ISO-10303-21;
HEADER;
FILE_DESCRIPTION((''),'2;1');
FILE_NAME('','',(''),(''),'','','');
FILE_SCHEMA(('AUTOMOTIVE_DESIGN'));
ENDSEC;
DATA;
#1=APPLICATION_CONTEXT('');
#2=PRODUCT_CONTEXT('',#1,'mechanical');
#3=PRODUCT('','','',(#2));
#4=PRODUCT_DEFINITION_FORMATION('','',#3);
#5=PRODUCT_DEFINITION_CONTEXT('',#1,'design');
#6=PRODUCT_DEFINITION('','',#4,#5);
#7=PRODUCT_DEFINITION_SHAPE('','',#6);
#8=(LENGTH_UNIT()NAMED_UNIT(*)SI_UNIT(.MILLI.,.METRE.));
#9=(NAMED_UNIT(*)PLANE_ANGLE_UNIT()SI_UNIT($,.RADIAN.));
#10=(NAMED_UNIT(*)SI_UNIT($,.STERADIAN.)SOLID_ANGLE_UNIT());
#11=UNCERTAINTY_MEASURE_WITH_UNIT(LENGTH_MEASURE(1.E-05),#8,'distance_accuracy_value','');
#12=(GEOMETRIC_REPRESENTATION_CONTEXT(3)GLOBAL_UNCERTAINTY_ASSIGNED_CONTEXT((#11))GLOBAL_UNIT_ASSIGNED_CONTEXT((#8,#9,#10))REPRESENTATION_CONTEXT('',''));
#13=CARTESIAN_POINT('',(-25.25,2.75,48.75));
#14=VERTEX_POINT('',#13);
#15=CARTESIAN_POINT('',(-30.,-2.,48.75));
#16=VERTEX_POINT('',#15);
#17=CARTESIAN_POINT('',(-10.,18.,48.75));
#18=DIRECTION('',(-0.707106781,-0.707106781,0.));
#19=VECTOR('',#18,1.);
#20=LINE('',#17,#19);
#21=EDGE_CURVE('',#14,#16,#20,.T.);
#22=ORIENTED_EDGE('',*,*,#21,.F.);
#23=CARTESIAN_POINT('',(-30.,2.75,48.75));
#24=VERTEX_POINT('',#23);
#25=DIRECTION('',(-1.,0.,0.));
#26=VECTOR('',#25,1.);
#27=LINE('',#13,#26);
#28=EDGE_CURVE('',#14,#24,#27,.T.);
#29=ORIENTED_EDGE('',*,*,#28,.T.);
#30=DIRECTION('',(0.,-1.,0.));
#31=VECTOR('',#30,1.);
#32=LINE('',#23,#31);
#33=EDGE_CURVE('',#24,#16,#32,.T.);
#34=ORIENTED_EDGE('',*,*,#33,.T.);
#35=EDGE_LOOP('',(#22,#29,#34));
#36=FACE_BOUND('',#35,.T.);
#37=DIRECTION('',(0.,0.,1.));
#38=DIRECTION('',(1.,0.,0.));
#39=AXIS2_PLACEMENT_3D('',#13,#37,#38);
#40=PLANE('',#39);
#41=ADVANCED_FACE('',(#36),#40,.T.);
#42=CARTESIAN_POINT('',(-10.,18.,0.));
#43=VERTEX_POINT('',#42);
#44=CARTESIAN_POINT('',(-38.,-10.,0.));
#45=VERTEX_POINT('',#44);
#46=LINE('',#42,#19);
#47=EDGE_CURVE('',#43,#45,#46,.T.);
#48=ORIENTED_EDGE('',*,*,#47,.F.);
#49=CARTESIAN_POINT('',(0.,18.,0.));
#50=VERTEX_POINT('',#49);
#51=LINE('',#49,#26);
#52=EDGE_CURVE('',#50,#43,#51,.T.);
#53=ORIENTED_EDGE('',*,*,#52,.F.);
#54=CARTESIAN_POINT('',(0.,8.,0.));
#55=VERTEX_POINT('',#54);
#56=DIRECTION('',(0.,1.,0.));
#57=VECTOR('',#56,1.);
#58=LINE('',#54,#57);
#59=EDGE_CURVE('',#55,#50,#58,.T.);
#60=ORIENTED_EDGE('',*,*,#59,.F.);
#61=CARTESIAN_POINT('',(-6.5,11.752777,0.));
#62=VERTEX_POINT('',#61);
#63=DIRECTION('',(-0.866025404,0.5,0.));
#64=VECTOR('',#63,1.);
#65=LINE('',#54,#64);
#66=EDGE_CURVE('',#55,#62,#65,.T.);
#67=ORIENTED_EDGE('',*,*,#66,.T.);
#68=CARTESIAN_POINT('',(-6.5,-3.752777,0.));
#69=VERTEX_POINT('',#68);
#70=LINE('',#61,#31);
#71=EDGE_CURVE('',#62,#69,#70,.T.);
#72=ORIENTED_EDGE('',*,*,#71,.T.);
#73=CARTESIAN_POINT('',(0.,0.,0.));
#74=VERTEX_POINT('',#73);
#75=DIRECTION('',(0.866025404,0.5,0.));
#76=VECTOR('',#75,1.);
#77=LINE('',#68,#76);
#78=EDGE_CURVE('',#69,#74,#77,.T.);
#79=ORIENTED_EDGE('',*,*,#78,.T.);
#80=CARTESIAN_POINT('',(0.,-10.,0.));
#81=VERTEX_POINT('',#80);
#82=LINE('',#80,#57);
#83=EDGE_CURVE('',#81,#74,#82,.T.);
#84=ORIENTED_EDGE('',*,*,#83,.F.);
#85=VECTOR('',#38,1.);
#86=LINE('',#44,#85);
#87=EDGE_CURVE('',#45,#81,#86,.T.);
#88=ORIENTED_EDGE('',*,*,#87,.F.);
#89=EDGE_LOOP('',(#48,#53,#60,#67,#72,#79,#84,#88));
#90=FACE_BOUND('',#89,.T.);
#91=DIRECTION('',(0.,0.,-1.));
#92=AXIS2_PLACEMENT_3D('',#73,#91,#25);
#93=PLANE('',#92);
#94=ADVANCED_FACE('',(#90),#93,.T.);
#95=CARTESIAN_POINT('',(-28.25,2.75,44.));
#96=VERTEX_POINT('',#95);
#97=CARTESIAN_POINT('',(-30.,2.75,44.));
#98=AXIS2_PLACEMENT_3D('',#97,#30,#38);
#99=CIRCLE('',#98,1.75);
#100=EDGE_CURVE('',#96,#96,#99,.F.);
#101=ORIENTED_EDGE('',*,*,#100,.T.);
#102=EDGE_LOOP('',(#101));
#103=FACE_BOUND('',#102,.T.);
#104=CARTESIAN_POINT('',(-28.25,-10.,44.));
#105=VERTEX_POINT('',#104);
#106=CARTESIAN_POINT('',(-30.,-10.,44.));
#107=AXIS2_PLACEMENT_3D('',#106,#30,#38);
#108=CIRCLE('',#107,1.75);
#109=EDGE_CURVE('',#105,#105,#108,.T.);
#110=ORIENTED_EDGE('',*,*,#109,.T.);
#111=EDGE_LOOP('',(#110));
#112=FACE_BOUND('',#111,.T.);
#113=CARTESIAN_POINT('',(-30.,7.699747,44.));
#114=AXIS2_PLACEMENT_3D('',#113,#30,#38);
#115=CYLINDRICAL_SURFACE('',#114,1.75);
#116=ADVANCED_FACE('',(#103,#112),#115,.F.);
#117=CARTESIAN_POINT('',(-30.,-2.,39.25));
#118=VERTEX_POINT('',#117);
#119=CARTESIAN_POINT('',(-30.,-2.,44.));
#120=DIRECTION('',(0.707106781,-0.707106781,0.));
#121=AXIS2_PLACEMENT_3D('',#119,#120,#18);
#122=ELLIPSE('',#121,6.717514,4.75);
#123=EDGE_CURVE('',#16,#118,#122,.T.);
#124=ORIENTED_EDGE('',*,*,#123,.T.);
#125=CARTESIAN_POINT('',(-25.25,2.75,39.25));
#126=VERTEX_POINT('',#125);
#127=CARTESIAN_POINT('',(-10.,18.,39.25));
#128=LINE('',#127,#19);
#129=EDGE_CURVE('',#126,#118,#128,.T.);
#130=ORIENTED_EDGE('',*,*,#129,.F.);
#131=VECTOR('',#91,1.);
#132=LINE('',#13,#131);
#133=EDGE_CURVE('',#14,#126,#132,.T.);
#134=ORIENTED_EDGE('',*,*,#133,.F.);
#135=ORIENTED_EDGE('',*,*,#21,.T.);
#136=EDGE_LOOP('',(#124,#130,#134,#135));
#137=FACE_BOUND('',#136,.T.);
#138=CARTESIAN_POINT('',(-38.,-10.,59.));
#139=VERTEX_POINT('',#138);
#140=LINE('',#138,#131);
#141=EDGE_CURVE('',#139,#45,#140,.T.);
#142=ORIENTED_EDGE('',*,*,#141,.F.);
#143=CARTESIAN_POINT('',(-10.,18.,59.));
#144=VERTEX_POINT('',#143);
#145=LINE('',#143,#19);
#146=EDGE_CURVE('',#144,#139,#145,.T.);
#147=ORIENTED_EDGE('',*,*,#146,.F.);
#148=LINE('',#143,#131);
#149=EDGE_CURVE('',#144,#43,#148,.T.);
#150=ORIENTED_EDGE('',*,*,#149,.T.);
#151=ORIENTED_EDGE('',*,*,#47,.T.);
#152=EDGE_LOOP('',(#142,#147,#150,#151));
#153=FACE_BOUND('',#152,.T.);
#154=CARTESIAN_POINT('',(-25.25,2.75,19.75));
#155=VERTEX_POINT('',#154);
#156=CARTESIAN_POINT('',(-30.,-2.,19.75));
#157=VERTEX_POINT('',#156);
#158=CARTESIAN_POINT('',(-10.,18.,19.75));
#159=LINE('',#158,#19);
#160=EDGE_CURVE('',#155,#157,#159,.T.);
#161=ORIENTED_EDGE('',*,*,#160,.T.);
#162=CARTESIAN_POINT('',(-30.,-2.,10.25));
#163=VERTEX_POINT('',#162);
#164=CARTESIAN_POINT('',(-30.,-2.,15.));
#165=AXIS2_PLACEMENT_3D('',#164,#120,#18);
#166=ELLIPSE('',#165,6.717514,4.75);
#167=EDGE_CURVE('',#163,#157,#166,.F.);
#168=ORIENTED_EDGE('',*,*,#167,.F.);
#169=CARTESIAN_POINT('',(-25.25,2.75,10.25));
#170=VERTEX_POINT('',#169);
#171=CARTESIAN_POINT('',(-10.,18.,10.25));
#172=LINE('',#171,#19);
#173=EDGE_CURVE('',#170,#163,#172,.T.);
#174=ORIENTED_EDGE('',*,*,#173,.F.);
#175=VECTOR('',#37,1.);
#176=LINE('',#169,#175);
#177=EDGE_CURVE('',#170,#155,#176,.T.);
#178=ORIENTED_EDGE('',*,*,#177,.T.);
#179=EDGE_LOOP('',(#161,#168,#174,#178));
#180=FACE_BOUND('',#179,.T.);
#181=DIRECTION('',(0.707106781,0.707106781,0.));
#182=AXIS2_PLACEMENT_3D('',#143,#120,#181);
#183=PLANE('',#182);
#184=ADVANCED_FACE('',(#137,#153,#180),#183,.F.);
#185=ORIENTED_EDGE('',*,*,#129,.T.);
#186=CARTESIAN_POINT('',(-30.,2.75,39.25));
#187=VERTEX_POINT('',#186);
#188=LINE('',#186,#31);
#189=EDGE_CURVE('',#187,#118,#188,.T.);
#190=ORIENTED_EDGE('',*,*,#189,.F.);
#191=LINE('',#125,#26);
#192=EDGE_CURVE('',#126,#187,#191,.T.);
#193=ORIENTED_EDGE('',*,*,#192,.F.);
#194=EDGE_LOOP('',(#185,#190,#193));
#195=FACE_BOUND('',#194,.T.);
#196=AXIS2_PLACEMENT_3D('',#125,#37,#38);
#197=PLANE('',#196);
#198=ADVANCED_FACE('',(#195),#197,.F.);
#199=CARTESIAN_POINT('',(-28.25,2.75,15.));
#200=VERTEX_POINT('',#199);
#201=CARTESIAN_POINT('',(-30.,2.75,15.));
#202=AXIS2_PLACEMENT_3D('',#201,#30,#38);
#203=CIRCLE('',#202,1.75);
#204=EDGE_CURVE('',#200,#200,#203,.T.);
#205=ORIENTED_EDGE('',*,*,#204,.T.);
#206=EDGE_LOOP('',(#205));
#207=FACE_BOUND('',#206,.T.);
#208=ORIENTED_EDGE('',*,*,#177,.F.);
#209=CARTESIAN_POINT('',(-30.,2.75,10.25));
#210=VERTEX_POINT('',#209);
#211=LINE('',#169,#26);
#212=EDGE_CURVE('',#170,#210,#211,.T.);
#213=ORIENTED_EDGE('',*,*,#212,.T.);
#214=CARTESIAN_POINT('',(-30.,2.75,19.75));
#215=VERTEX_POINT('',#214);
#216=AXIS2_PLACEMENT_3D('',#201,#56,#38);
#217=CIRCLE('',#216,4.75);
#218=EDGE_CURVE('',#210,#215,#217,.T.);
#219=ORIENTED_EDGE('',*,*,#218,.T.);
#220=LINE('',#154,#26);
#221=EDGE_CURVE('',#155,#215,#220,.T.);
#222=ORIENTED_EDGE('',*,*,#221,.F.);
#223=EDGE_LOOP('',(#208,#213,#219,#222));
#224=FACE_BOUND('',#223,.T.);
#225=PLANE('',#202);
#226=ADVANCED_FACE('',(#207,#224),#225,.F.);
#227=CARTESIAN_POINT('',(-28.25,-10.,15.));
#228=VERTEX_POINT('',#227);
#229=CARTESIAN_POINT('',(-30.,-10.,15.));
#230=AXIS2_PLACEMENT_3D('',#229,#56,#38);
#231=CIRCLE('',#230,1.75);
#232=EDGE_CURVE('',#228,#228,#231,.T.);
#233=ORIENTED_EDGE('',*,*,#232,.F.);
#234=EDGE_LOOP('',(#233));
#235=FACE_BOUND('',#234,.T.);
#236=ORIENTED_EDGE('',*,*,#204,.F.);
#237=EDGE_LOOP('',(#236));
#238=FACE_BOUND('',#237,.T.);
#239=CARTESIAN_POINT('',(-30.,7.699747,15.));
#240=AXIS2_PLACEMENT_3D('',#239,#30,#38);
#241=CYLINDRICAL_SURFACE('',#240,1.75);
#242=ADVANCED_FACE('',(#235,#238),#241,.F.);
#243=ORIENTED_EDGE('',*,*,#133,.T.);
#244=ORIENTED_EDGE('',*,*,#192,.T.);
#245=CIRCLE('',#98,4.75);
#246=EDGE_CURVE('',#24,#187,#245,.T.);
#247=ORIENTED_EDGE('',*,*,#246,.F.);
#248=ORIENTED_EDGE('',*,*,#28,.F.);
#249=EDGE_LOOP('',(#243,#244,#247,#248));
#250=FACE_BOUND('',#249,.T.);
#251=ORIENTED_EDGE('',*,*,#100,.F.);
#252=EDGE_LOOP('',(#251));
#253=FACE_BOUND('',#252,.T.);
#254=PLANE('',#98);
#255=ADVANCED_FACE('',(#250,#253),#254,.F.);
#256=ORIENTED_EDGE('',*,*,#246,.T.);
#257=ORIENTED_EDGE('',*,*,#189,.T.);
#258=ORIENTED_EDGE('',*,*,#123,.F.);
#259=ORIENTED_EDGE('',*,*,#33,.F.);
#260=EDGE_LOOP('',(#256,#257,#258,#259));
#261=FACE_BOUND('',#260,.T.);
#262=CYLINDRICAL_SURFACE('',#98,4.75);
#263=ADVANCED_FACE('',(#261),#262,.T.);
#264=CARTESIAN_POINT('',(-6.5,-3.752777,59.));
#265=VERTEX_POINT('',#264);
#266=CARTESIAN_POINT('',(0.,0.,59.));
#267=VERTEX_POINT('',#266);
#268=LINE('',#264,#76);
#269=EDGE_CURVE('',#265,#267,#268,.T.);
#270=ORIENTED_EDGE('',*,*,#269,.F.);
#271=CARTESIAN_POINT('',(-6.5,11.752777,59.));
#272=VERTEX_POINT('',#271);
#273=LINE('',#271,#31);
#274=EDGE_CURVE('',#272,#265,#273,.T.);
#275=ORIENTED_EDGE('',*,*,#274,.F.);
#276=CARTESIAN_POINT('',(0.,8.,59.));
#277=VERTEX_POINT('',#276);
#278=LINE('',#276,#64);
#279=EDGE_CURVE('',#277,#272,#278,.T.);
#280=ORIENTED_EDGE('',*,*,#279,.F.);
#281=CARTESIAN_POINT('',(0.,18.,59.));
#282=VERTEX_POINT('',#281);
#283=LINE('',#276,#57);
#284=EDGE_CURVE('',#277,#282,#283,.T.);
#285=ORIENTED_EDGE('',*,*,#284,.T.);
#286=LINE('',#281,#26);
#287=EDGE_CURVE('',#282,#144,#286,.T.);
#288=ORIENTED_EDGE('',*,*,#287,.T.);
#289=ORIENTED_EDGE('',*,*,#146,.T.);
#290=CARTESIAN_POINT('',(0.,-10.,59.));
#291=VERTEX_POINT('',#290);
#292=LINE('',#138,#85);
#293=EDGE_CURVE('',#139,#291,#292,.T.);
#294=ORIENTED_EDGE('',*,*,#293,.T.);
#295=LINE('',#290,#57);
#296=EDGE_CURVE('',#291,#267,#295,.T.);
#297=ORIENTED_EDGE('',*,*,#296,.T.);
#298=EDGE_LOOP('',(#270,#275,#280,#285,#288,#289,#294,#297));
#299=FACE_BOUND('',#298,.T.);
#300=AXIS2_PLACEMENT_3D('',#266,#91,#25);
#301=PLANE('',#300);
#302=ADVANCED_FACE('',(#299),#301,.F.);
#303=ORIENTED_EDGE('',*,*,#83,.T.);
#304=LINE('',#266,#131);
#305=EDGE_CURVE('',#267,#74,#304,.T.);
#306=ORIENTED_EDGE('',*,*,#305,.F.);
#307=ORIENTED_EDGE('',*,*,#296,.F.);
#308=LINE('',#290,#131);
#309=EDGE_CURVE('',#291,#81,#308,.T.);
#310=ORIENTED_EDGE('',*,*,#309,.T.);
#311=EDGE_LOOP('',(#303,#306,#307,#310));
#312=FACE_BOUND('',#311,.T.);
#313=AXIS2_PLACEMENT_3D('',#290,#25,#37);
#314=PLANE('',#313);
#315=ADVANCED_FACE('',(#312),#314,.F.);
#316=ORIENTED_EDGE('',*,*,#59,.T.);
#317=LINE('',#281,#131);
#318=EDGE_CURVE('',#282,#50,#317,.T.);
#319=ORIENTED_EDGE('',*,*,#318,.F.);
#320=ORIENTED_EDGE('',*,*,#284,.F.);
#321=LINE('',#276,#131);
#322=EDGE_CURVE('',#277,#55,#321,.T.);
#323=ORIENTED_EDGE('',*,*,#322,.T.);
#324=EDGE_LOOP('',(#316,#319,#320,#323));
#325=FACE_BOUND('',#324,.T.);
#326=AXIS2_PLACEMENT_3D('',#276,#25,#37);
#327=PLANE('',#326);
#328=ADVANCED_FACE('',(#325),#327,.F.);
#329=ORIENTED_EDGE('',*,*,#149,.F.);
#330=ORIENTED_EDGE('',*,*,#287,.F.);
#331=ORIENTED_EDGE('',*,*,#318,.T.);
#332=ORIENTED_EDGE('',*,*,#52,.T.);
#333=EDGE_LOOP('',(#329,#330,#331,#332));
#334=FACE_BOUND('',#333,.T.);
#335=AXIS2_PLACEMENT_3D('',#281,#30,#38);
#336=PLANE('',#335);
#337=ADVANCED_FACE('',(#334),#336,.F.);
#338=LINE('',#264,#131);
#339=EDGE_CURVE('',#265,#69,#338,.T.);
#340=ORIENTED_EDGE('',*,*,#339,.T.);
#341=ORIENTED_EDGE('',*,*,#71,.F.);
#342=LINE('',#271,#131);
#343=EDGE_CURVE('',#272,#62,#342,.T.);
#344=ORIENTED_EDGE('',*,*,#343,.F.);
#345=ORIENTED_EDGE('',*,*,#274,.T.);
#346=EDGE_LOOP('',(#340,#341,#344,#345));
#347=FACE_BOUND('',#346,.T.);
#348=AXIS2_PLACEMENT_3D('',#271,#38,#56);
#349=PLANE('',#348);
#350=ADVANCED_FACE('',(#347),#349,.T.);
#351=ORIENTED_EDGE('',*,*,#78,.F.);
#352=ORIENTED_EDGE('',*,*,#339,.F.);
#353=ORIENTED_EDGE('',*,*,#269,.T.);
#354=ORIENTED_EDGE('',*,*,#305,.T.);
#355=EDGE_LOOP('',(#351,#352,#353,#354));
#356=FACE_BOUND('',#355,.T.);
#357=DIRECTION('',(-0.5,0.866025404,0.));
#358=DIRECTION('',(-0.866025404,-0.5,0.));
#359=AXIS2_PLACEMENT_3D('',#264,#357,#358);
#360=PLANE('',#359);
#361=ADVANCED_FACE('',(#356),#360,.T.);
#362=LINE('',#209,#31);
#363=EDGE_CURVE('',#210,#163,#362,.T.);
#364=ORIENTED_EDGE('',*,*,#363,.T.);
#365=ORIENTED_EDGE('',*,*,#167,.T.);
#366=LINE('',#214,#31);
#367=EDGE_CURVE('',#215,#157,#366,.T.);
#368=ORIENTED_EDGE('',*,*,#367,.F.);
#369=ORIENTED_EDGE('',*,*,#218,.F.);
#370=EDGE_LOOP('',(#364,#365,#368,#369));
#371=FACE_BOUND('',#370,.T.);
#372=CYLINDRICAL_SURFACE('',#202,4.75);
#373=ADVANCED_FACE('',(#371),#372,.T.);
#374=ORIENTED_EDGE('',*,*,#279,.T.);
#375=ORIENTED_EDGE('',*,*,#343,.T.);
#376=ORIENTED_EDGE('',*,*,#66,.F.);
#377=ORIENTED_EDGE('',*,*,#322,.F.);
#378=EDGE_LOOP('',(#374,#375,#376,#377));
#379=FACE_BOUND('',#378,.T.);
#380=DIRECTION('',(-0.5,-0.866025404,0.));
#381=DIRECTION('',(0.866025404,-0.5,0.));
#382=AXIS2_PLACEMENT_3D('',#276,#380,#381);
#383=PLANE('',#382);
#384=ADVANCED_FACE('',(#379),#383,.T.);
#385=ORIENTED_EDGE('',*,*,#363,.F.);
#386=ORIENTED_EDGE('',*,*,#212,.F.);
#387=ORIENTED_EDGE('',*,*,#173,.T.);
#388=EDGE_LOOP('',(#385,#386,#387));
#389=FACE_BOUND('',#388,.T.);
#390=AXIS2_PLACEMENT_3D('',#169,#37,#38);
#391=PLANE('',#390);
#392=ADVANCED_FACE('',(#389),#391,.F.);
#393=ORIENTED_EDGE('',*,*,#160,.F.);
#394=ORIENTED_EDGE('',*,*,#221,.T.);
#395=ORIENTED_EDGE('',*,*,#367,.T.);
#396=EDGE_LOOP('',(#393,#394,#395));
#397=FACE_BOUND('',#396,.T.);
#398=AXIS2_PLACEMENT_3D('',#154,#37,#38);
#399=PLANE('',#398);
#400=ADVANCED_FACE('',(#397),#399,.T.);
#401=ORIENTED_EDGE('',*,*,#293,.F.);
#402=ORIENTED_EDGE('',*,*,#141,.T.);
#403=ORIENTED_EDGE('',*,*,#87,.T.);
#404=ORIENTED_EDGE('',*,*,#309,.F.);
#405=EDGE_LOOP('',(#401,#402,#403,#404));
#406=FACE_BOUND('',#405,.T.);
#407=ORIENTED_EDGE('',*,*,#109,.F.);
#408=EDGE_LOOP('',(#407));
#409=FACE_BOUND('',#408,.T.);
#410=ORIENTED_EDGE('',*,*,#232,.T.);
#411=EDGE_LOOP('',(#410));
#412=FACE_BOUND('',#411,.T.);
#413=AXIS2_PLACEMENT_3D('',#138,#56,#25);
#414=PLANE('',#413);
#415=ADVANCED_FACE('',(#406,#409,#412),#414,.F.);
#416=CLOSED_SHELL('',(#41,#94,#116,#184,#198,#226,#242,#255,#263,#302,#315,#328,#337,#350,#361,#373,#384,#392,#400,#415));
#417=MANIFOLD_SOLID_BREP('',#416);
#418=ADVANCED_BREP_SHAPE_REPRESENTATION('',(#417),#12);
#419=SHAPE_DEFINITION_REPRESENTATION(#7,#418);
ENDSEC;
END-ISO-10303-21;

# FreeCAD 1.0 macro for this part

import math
import FreeCAD as App
import Part
import Sketcher

V = App.Vector
Q = App.Units.Quantity

doc = App.newDocument("Part")
params = doc.addObject("Spreadsheet::Sheet", "Params")
for row, (alias, value) in enumerate([
    ("sketch1_width", "10 mm"),
    ("sketch1_width2", "38 mm"),
    ("pad1_length", "59 mm"),
    ("sketch2_radius", "4.75 mm"),
    ("sketch2_width", "4.75 mm"),
    ("pad2_length", "12.75 mm"),
    ("sketch3_diameter", "3.5 mm"),
    ("pocket1_length", "12.75 mm"),
], start=1):
    params.set(f"A{row}", alias)
    params.set(f"B{row}", "=" + value)
    params.setAlias(f"B{row}", alias)

body = doc.addObject("PartDesign::Body", "Body")

# Sketch on XY plane
sketch1 = body.newObject("Sketcher::SketchObject", "Sketch")
sketch1.AttachmentSupport = (doc.getObject("XY_Plane"), [""])
sketch1.MapMode = "FlatFace"
sketch1.addGeometry(Part.LineSegment(V(0, 8, 0), V(0, 18, 0)), False)
sketch1.addGeometry(Part.LineSegment(V(0, 18, 0), V(-10, 18, 0)), False)
sketch1.addGeometry(Part.LineSegment(V(-10, 18, 0), V(-38, -10, 0)), False)
sketch1.addGeometry(Part.LineSegment(V(-38, -10, 0), V(0, -10, 0)), False)
sketch1.addGeometry(Part.LineSegment(V(0, -10, 0), V(0, 0, 0)), False)
sketch1.addGeometry(Part.LineSegment(V(0, 0, 0), V(-6.5, -3.752777, 0)), False)
sketch1.addGeometry(Part.LineSegment(V(-6.5, -3.752777, 0), V(-6.5, 11.752777, 0)), False)
sketch1.addGeometry(Part.LineSegment(V(-6.5, 11.752777, 0), V(0, 8, 0)), False)
sketch1.addConstraint(Sketcher.Constraint("Coincident", 0, 2, 1, 1))
sketch1.addConstraint(Sketcher.Constraint("Coincident", 1, 2, 2, 1))
sketch1.addConstraint(Sketcher.Constraint("Coincident", 2, 2, 3, 1))
sketch1.addConstraint(Sketcher.Constraint("Coincident", 3, 2, 4, 1))
sketch1.addConstraint(Sketcher.Constraint("Coincident", 4, 2, 5, 1))
sketch1.addConstraint(Sketcher.Constraint("Coincident", 5, 2, 6, 1))
sketch1.addConstraint(Sketcher.Constraint("Coincident", 6, 2, 7, 1))
sketch1.addConstraint(Sketcher.Constraint("Coincident", 7, 2, 0, 1))
sketch1.addConstraint(Sketcher.Constraint("Vertical", 0))
sketch1.addConstraint(Sketcher.Constraint("Horizontal", 1))
sketch1.addConstraint(Sketcher.Constraint("Horizontal", 3))
sketch1.addConstraint(Sketcher.Constraint("Vertical", 4))
sketch1.addConstraint(Sketcher.Constraint("Vertical", 6))
sketch1.addConstraint(Sketcher.Constraint("Coincident", 4, 2, -1, 1))
sketch1.addConstraint(Sketcher.Constraint("PointOnObject", 0, 2, -2))
sketch1.addConstraint(Sketcher.Constraint("Equal", 1, 0))
sketch1.addConstraint(Sketcher.Constraint("Equal", 0, 4))
sketch1.addConstraint(Sketcher.Constraint("Equal", 5, 7))
sketch1.addConstraint(Sketcher.Constraint("DistanceX", 1, 2, 1, 1, Q("10 mm")))
sketch1.addConstraint(Sketcher.Constraint("DistanceX", 3, 1, 3, 2, Q("38 mm")))
sketch1.addConstraint(Sketcher.Constraint("Angle", 2, Q("-135 deg")))
sketch1.addConstraint(Sketcher.Constraint("Angle", 5, Q("-150 deg")))
sketch1.addConstraint(Sketcher.Constraint("DistanceX", 5, 2, -1, 1, Q("6.5 mm")))
sketch1.setExpression("Constraints[18]", "Params.sketch1_width")
sketch1.setExpression("Constraints[19]", "Params.sketch1_width2")
pad1 = body.newObject("PartDesign::Pad", "Pad")
pad1.Profile = sketch1
pad1.setExpression("Length", "Params.pad1_length")

# Sketch on XZ plane
sketch2 = body.newObject("Sketcher::SketchObject", "Sketch001")
sketch2.AttachmentSupport = (doc.getObject("XZ_Plane"), [""])
sketch2.MapMode = "FlatFace"
sketch2.AttachmentOffset = App.Placement(V(0, 0, 10), App.Rotation())
sketch2.addGeometry(Part.LineSegment(V(-25.25, 39.25, 0), V(-25.25, 48.75, 0)), False)
sketch2.addGeometry(Part.LineSegment(V(-25.25, 48.75, 0), V(-30, 48.75, 0)), False)
sketch2.addGeometry(Part.ArcOfCircle(Part.Circle(V(-30, 44, 0), V(0, 0, 1), 4.75), math.radians(90), math.radians(270)), False)
sketch2.addGeometry(Part.LineSegment(V(-30, 39.25, 0), V(-25.25, 39.25, 0)), False)
sketch2.addConstraint(Sketcher.Constraint("Coincident", 0, 2, 1, 1))
sketch2.addConstraint(Sketcher.Constraint("Tangent", 1, 2, 2, 1))
sketch2.addConstraint(Sketcher.Constraint("Tangent", 2, 2, 3, 1))
sketch2.addConstraint(Sketcher.Constraint("Coincident", 3, 2, 0, 1))
sketch2.addConstraint(Sketcher.Constraint("Vertical", 0))
sketch2.addConstraint(Sketcher.Constraint("Horizontal", 1))
sketch2.addConstraint(Sketcher.Constraint("Horizontal", 3))
sketch2.addConstraint(Sketcher.Constraint("Radius", 2, Q("4.75 mm")))
sketch2.addConstraint(Sketcher.Constraint("DistanceX", 2, 3, -1, 1, Q("30 mm")))
sketch2.addConstraint(Sketcher.Constraint("DistanceY", -1, 1, 2, 3, Q("44 mm")))
sketch2.addConstraint(Sketcher.Constraint("DistanceX", 1, 2, 1, 1, Q("4.75 mm")))
sketch2.setExpression("Constraints[7]", "Params.sketch2_radius")
sketch2.setExpression("Constraints[10]", "Params.sketch2_width")
pad2 = body.newObject("PartDesign::Pad", "Pad001")
pad2.Profile = sketch2
pad2.setExpression("Length", "Params.pad2_length")
pad2.Reversed = True

# Sketch on XZ plane
sketch3 = body.newObject("Sketcher::SketchObject", "Sketch002")
sketch3.AttachmentSupport = (doc.getObject("XZ_Plane"), [""])
sketch3.MapMode = "FlatFace"
sketch3.AttachmentOffset = App.Placement(V(0, 0, 10), App.Rotation())
sketch3.addGeometry(Part.Circle(V(-30, 44, 0), V(0, 0, 1), 1.75), False)
sketch3.addConstraint(Sketcher.Constraint("Diameter", 0, Q("3.5 mm")))
sketch3.addConstraint(Sketcher.Constraint("DistanceX", 0, 3, -1, 1, Q("30 mm")))
sketch3.addConstraint(Sketcher.Constraint("DistanceY", -1, 1, 0, 3, Q("44 mm")))
sketch3.setExpression("Constraints[0]", "Params.sketch3_diameter")
pocket1 = body.newObject("PartDesign::Pocket", "Pocket")
pocket1.Profile = sketch3
pocket1.setExpression("Length", "Params.pocket1_length")
doc.recompute()

datumplane = body.newObject("PartDesign::Plane", "DatumPlane")
datumplane.AttachmentSupport = (doc.getObject("XY_Plane"), [""])
datumplane.MapMode = "FlatFace"
datumplane.AttachmentOffset = App.Placement(V(0, 0, 29.5), App.Rotation())
mirrored = body.newObject("PartDesign::Mirrored", "Mirrored")
mirrored.Originals = [pad2, pocket1]
mirrored.MirrorPlane = (datumplane, [""])
body.Tip = mirrored

doc.recompute()
